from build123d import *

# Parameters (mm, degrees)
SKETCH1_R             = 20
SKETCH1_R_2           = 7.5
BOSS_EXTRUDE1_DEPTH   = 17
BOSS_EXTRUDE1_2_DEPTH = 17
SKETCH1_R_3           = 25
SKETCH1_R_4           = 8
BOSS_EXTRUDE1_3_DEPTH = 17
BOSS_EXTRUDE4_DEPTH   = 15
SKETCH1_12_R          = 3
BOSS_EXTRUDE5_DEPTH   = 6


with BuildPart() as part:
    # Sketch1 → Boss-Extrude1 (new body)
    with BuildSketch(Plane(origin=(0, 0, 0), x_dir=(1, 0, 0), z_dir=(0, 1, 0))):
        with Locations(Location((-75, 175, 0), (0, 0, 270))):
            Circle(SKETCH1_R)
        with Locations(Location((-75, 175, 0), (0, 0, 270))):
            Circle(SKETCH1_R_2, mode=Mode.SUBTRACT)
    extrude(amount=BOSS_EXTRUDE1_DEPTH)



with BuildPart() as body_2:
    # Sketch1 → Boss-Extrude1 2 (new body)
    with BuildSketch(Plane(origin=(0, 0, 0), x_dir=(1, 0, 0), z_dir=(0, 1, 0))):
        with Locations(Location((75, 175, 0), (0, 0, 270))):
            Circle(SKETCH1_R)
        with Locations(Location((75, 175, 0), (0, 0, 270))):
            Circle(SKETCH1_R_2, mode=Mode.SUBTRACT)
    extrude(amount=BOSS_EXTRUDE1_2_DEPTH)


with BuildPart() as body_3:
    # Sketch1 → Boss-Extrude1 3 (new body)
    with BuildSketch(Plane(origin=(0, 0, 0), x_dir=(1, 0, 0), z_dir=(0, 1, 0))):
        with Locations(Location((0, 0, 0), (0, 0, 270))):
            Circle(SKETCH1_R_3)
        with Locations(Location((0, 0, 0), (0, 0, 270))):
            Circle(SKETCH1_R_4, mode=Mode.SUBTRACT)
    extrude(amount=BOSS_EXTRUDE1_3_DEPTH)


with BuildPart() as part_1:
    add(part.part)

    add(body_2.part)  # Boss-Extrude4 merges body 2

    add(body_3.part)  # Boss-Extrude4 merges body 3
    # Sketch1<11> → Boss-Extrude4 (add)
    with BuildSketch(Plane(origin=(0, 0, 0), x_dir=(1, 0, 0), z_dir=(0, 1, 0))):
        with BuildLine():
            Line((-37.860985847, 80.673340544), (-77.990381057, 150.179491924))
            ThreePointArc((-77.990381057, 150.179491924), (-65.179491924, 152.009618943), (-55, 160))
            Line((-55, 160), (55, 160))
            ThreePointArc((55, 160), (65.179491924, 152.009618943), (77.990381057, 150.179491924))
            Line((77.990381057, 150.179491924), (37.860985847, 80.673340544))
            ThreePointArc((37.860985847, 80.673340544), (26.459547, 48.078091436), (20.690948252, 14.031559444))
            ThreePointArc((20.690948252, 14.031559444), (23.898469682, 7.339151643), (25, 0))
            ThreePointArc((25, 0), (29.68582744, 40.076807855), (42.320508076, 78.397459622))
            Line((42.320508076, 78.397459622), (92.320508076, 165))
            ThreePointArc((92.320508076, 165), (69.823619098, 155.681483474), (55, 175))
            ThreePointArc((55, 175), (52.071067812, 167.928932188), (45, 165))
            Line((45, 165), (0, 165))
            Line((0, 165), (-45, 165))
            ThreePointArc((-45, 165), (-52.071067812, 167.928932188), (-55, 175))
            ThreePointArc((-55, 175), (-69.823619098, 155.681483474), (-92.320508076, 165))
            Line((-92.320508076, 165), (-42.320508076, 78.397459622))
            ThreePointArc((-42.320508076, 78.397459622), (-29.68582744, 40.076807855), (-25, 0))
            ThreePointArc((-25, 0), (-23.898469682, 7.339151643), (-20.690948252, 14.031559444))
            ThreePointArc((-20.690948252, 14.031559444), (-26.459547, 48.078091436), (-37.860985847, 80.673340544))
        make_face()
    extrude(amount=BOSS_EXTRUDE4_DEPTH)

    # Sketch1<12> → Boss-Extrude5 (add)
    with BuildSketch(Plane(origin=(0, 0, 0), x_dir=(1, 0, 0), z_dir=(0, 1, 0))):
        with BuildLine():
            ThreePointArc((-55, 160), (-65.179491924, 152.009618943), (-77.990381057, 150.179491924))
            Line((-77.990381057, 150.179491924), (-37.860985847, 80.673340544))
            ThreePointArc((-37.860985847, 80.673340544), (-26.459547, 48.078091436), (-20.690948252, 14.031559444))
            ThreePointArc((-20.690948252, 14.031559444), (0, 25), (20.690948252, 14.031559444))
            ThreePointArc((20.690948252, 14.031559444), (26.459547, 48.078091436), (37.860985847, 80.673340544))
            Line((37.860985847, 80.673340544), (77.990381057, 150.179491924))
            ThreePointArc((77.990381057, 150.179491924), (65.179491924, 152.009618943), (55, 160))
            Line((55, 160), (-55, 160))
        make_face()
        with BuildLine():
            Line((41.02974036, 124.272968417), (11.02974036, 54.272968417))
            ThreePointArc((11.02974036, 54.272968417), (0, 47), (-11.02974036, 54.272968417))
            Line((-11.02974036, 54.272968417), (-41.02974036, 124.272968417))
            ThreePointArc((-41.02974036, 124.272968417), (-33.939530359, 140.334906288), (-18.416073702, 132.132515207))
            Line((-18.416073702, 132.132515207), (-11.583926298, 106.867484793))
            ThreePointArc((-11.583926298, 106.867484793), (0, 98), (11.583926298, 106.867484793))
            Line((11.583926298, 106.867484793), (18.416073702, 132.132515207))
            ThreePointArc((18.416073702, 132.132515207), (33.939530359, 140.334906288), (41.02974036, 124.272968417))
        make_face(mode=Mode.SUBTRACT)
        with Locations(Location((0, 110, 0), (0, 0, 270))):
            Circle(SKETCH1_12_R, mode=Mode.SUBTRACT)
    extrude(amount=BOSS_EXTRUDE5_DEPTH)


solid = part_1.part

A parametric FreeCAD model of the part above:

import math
import FreeCAD as App
import Part
import Sketcher
Q = App.Units.Quantity

doc = App.newDocument("Part")
body = doc.addObject("PartDesign::Body", "Body")

# Sketch on XZ plane
sketch1 = doc.addObject("Sketcher::SketchObject", "Sketch")
body.addObject(sketch1)
sketch1.AttachmentSupport = (doc.XZ_Plane, [""])
sketch1.MapMode = "FlatFace"
sketch1.addGeometry(Part.Circle(App.Vector(-75, -175, 0), App.Vector(0, 0, 1), 20), False)
sketch1.addGeometry(Part.Circle(App.Vector(-75, -175, 0), App.Vector(0, 0, 1), 7.5), False)
sketch1.addConstraint(Sketcher.Constraint("Coincident", 1, 3, 0, 3))
sketch1.addConstraint(Sketcher.Constraint("Diameter", 0, 40.0))
sketch1.addConstraint(Sketcher.Constraint("Diameter", 1, 15.0))
sketch1.addConstraint(Sketcher.Constraint("DistanceX", 0, 3, -1, 1, 75.0))
sketch1.addConstraint(Sketcher.Constraint("DistanceY", 0, 3, -1, 1, 175.0))
pad1 = doc.addObject("PartDesign::Pad", "Pad")
body.addObject(pad1)
pad1.Profile = sketch1
pad1.Length = 17
pad1.Reversed = True
body2 = doc.addObject("PartDesign::Body", "Body001")

# Sketch on XZ plane
sketch2 = doc.addObject("Sketcher::SketchObject", "Sketch001")
body2.addObject(sketch2)
sketch2.AttachmentSupport = (doc.getObject("XZ_Plane001"), [""])
sketch2.MapMode = "FlatFace"
sketch2.addGeometry(Part.Circle(App.Vector(75, -175, 0), App.Vector(0, 0, 1), 20), False)
sketch2.addGeometry(Part.Circle(App.Vector(75, -175, 0), App.Vector(0, 0, 1), 7.5), False)
sketch2.addConstraint(Sketcher.Constraint("Coincident", 1, 3, 0, 3))
sketch2.addConstraint(Sketcher.Constraint("Diameter", 0, 40.0))
sketch2.addConstraint(Sketcher.Constraint("Diameter", 1, 15.0))
sketch2.addConstraint(Sketcher.Constraint("DistanceX", -1, 1, 0, 3, 75.0))
sketch2.addConstraint(Sketcher.Constraint("DistanceY", 0, 3, -1, 1, 175.0))
pad2 = doc.addObject("PartDesign::Pad", "Pad001")
body2.addObject(pad2)
pad2.Profile = sketch2
pad2.Length = 17
pad2.Reversed = True
body3 = doc.addObject("PartDesign::Body", "Body002")

# Sketch on XZ plane
sketch3 = doc.addObject("Sketcher::SketchObject", "Sketch002")
body3.addObject(sketch3)
sketch3.AttachmentSupport = (doc.getObject("XZ_Plane002"), [""])
sketch3.MapMode = "FlatFace"
sketch3.addGeometry(Part.Circle(App.Vector(0, 0, 0), App.Vector(0, 0, 1), 25), False)
sketch3.addGeometry(Part.Circle(App.Vector(0, 0, 0), App.Vector(0, 0, 1), 8), False)
sketch3.addConstraint(Sketcher.Constraint("Coincident", 0, 3, -1, 1))
sketch3.addConstraint(Sketcher.Constraint("Coincident", 1, 3, -1, 1))
sketch3.addConstraint(Sketcher.Constraint("Diameter", 0, 50.0))
sketch3.addConstraint(Sketcher.Constraint("Diameter", 1, 16.0))
pad3 = doc.addObject("PartDesign::Pad", "Pad002")
body3.addObject(pad3)
pad3.Profile = sketch3
pad3.Length = 17
pad3.Reversed = True
body.AllowCompound = True
doc.recompute()

boolean = doc.addObject("PartDesign::Boolean", "Boolean")
body.addObject(boolean)
boolean.Type = "Fuse"
boolean.addObjects([body2])
doc.recompute()

boolean2 = doc.addObject("PartDesign::Boolean", "Boolean001")
body.addObject(boolean2)
boolean2.Type = "Fuse"
boolean2.addObjects([body3])

# Sketch on XZ plane
sketch4 = doc.addObject("Sketcher::SketchObject", "Sketch003")
body.addObject(sketch4)
sketch4.AttachmentSupport = (doc.XZ_Plane, [""])
sketch4.MapMode = "FlatFace"
sketch4.addGeometry(Part.LineSegment(App.Vector(-37.860986, -80.673341, 0), App.Vector(-77.990381, -150.179492, 0)), False)
sketch4.addGeometry(Part.ArcOfCircle(Part.Circle(App.Vector(-75, -175, 0), App.Vector(0, 0, 1), 25), math.radians(36.869898), math.radians(96.869898)), False)
sketch4.addGeometry(Part.LineSegment(App.Vector(-55, -160, 0), App.Vector(55, -160, 0)), False)
sketch4.addGeometry(Part.ArcOfCircle(Part.Circle(App.Vector(75, -175, 0), App.Vector(0, 0, 1), 25), math.radians(83.130102), math.radians(143.130102)), False)
sketch4.addGeometry(Part.LineSegment(App.Vector(77.990381, -150.179492, 0), App.Vector(37.860986, -80.673341, 0)), False)
sketch4.addGeometry(Part.ArcOfCircle(Part.Circle(App.Vector(224.97645, 3.069141, 0), App.Vector(0, 0, 1), 205), math.radians(-175.214937), math.radians(-155.889364)), False)
sketch4.addGeometry(Part.ArcOfCircle(Part.Circle(App.Vector(0, 0, 0), App.Vector(0, 0, 1), 25), math.radians(-34.143145), math.radians(0)), False)
sketch4.addGeometry(Part.ArcOfCircle(Part.Circle(App.Vector(224.97645, 3.069141, 0), App.Vector(0, 0, 1), 200), math.radians(-179.120721), math.radians(-155.962592)), False)
sketch4.addGeometry(Part.LineSegment(App.Vector(42.320508, -78.39746, 0), App.Vector(92.320508, -165, 0)), False)
sketch4.addGeometry(Part.ArcOfCircle(Part.Circle(App.Vector(75, -175, 0), App.Vector(0, 0, 1), 20), math.radians(30), math.radians(180)), False)
sketch4.addGeometry(Part.ArcOfCircle(Part.Circle(App.Vector(45, -175, 0), App.Vector(0, 0, 1), 10), math.radians(0), math.radians(90)), False)
sketch4.addGeometry(Part.LineSegment(App.Vector(45, -165, 0), App.Vector(-45, -165, 0)), False)
sketch4.addGeometry(Part.ArcOfCircle(Part.Circle(App.Vector(-45, -175, 0), App.Vector(0, 0, 1), 10), math.radians(90), math.radians(180)), False)
sketch4.addGeometry(Part.ArcOfCircle(Part.Circle(App.Vector(-75, -175, 0), App.Vector(0, 0, 1), 20), math.radians(0), math.radians(150)), False)
sketch4.addGeometry(Part.LineSegment(App.Vector(-92.320508, -165, 0), App.Vector(-42.320508, -78.39746, 0)), False)
sketch4.addGeometry(Part.ArcOfCircle(Part.Circle(App.Vector(-224.97645, 3.069141, 0), App.Vector(0, 0, 1), 200), math.radians(-24.037408), math.radians(-0.879279)), False)
sketch4.addGeometry(Part.ArcOfCircle(Part.Circle(App.Vector(0, 0, 0), App.Vector(0, 0, 1), 25), math.radians(-180), math.radians(-145.856855)), False)
sketch4.addGeometry(Part.ArcOfCircle(Part.Circle(App.Vector(-224.97645, 3.069141, 0), App.Vector(0, 0, 1), 205), math.radians(-24.110636), math.radians(-4.785063)), False)
sketch4.addConstraint(Sketcher.Constraint("Coincident", 0, 2, 1, 2))
sketch4.addConstraint(Sketcher.Constraint("Coincident", 1, 1, 2, 1))
sketch4.addConstraint(Sketcher.Constraint("Coincident", 2, 2, 3, 2))
sketch4.addConstraint(Sketcher.Constraint("Coincident", 3, 1, 4, 1))
sketch4.addConstraint(Sketcher.Constraint("Coincident", 4, 2, 5, 2))
sketch4.addConstraint(Sketcher.Constraint("Coincident", 5, 1, 6, 1))
sketch4.addConstraint(Sketcher.Constraint("Coincident", 6, 2, 7, 1))
sketch4.addConstraint(Sketcher.Constraint("Coincident", 7, 2, 8, 1))
sketch4.addConstraint(Sketcher.Constraint("Tangent", 8, 2, 9, 1))
sketch4.addConstraint(Sketcher.Constraint("Tangent", 9, 2, 10, 1))
sketch4.addConstraint(Sketcher.Constraint("Tangent", 10, 2, 11, 1))
sketch4.addConstraint(Sketcher.Constraint("Tangent", 11, 2, 12, 1))
sketch4.addConstraint(Sketcher.Constraint("Tangent", 12, 2, 13, 1))
sketch4.addConstraint(Sketcher.Constraint("Tangent", 13, 2, 14, 1))
sketch4.addConstraint(Sketcher.Constraint("Coincident", 14, 2, 15, 1))
sketch4.addConstraint(Sketcher.Constraint("Coincident", 15, 2, 16, 1))
sketch4.addConstraint(Sketcher.Constraint("Coincident", 16, 2, 17, 2))
sketch4.addConstraint(Sketcher.Constraint("Coincident", 17, 1, 0, 1))
sketch4.addConstraint(Sketcher.Constraint("Horizontal", 2))
sketch4.addConstraint(Sketcher.Constraint("Horizontal", 11))
sketch4.addConstraint(Sketcher.Constraint("Coincident", 6, 3, -1, 1))
sketch4.addConstraint(Sketcher.Constraint("Coincident", 16, 3, -1, 1))
sketch4.addConstraint(Sketcher.Constraint("Coincident", 7, 3, 5, 3))
sketch4.addConstraint(Sketcher.Constraint("Coincident", 9, 3, 3, 3))
sketch4.addConstraint(Sketcher.Constraint("Coincident", 13, 3, 1, 3))
sketch4.addConstraint(Sketcher.Constraint("Coincident", 17, 3, 15, 3))
sketch4.addConstraint(Sketcher.Constraint("Equal", 1, 3))
sketch4.addConstraint(Sketcher.Constraint("Equal", 3, 6))
sketch4.addConstraint(Sketcher.Constraint("Equal", 10, 12))
sketch4.addConstraint(Sketcher.Constraint("Equal", 9, 13))
sketch4.addConstraint(Sketcher.Constraint("Equal", 7, 15))
sketch4.addConstraint(Sketcher.Constraint("Equal", 6, 16))
sketch4.addConstraint(Sketcher.Constraint("Equal", 5, 17))
sketch4.addConstraint(Sketcher.Constraint("Symmetric", 1, 3, 3, 3, -2))
sketch4.addConstraint(Sketcher.Constraint("Symmetric", 5, 3, 15, 3, -2))
sketch4.addConstraint(Sketcher.Constraint("PointOnObject", 6, 2, -1))
sketch4.addConstraint(Sketcher.Constraint("Parallel", 4, 8))
sketch4.addConstraint(Sketcher.Constraint("Parallel", 0, 14))
sketch4.addConstraint(Sketcher.Constraint("Horizontal", 9, 3, 10, 3))
sketch4.addConstraint(Sketcher.Constraint("Horizontal", 0, 2, 3, 1))
sketch4.addConstraint(Sketcher.Constraint("Horizontal", 8, 2, 10, 2))
sketch4.addConstraint(Sketcher.Constraint("Horizontal", 7, 2, 14, 2))
sketch4.addConstraint(Sketcher.Constraint("Vertical", 2, 2, 9, 2))
sketch4.addConstraint(Sketcher.Constraint("Radius", 1, 25.0))
sketch4.addConstraint(Sketcher.Constraint("Radius", 5, 205.0))
sketch4.addConstraint(Sketcher.Constraint("Radius", 7, 200.0))
sketch4.addConstraint(Sketcher.Constraint("Radius", 9, 20.0))
sketch4.addConstraint(Sketcher.Constraint("Radius", 10, 10.0))
sketch4.addConstraint(Sketcher.Constraint("DistanceX", 2, 1, 2, 2, 110.0))
sketch4.addConstraint(Sketcher.Constraint("Distance", 8, 100.0))
sketch4.addConstraint(Sketcher.Constraint("DistanceY", 1, 3, -1, 1, 175.0))
sketch4.addConstraint(Sketcher.Constraint("Distance", 0, 80.25879))
pad4 = doc.addObject("PartDesign::Pad", "Pad003")
body.addObject(pad4)
pad4.Profile = sketch4
pad4.Length = 15
pad4.Reversed = True

# Sketch on XZ plane
sketch5 = doc.addObject("Sketcher::SketchObject", "Sketch004")
body.addObject(sketch5)
sketch5.AttachmentSupport = (doc.XZ_Plane, [""])
sketch5.MapMode = "FlatFace"
sketch5.addGeometry(Part.ArcOfCircle(Part.Circle(App.Vector(-75, -175, 0), App.Vector(0, 0, 1), 25), math.radians(36.869898), math.radians(96.869898)), False)
sketch5.addGeometry(Part.LineSegment(App.Vector(-77.990381, -150.179492, 0), App.Vector(-37.860986, -80.673341, 0)), False)
sketch5.addGeometry(Part.ArcOfCircle(Part.Circle(App.Vector(-224.97645, 3.069141, 0), App.Vector(0, 0, 1), 205), math.radians(-24.110636), math.radians(-4.785063)), False)
sketch5.addGeometry(Part.ArcOfCircle(Part.Circle(App.Vector(0, 0, 0), App.Vector(0, 0, 1), 25), math.radians(-145.856855), math.radians(-34.143145)), False)
sketch5.addGeometry(Part.ArcOfCircle(Part.Circle(App.Vector(224.97645, 3.069141, 0), App.Vector(0, 0, 1), 205), math.radians(-175.214937), math.radians(-155.889364)), False)
sketch5.addGeometry(Part.LineSegment(App.Vector(37.860986, -80.673341, 0), App.Vector(77.990381, -150.179492, 0)), False)
sketch5.addGeometry(Part.ArcOfCircle(Part.Circle(App.Vector(75, -175, 0), App.Vector(0, 0, 1), 25), math.radians(83.130102), math.radians(143.130102)), False)
sketch5.addGeometry(Part.LineSegment(App.Vector(55, -160, 0), App.Vector(-55, -160, 0)), False)
sketch5.addGeometry(Part.ArcOfCircle(Part.Circle(App.Vector(30, -129, 0), App.Vector(0, 0, 1), 12), math.radians(-164.868045), math.radians(23.198591)), False)
sketch5.addGeometry(Part.LineSegment(App.Vector(41.02974, -124.272968, 0), App.Vector(11.02974, -54.272968, 0)), False)
sketch5.addGeometry(Part.ArcOfCircle(Part.Circle(App.Vector(0, -59, 0), App.Vector(0, 0, 1), 12), math.radians(23.198591), math.radians(156.801409)), False)
sketch5.addGeometry(Part.LineSegment(App.Vector(-11.02974, -54.272968, 0), App.Vector(-41.02974, -124.272968, 0)), False)
sketch5.addGeometry(Part.ArcOfCircle(Part.Circle(App.Vector(-30, -129, 0), App.Vector(0, 0, 1), 12), math.radians(156.801409), math.radians(344.868045)), False)
sketch5.addGeometry(Part.LineSegment(App.Vector(-18.416074, -132.132515, 0), App.Vector(-11.583926, -106.867485, 0)), False)
sketch5.addGeometry(Part.ArcOfCircle(Part.Circle(App.Vector(0, -110, 0), App.Vector(0, 0, 1), 12), math.radians(15.131955), math.radians(164.868045)), False)
sketch5.addGeometry(Part.LineSegment(App.Vector(11.583926, -106.867485, 0), App.Vector(18.416074, -132.132515, 0)), False)
sketch5.addGeometry(Part.Circle(App.Vector(0, -110, 0), App.Vector(0, 0, 1), 3), False)
sketch5.addConstraint(Sketcher.Constraint("Coincident", 0, 2, 1, 1))
sketch5.addConstraint(Sketcher.Constraint("Coincident", 1, 2, 2, 1))
sketch5.addConstraint(Sketcher.Constraint("Coincident", 2, 2, 3, 1))
sketch5.addConstraint(Sketcher.Constraint("Coincident", 3, 2, 4, 1))
sketch5.addConstraint(Sketcher.Constraint("Coincident", 4, 2, 5, 1))
sketch5.addConstraint(Sketcher.Constraint("Coincident", 5, 2, 6, 1))
sketch5.addConstraint(Sketcher.Constraint("Coincident", 6, 2, 7, 1))
sketch5.addConstraint(Sketcher.Constraint("Coincident", 7, 2, 0, 1))
sketch5.addConstraint(Sketcher.Constraint("Tangent", 8, 2, 9, 1))
sketch5.addConstraint(Sketcher.Constraint("Tangent", 9, 2, 10, 1))
sketch5.addConstraint(Sketcher.Constraint("Tangent", 10, 2, 11, 1))
sketch5.addConstraint(Sketcher.Constraint("Tangent", 11, 2, 12, 1))
sketch5.addConstraint(Sketcher.Constraint("Tangent", 12, 2, 13, 1))
sketch5.addConstraint(Sketcher.Constraint("Tangent", 13, 2, 14, 2))
sketch5.addConstraint(Sketcher.Constraint("Tangent", 14, 1, 15, 1))
sketch5.addConstraint(Sketcher.Constraint("Tangent", 15, 2, 8, 1))
sketch5.addConstraint(Sketcher.Constraint("Horizontal", 7))
sketch5.addConstraint(Sketcher.Constraint("Coincident", 3, 3, -1, 1))
sketch5.addConstraint(Sketcher.Constraint("Coincident", 16, 3, 14, 3))
sketch5.addConstraint(Sketcher.Constraint("Equal", 0, 3))
sketch5.addConstraint(Sketcher.Constraint("Equal", 2, 4))
sketch5.addConstraint(Sketcher.Constraint("Equal", 3, 6))
sketch5.addConstraint(Sketcher.Constraint("Equal", 8, 10))
sketch5.addConstraint(Sketcher.Constraint("Equal", 10, 12))
sketch5.addConstraint(Sketcher.Constraint("Equal", 12, 14))
sketch5.addConstraint(Sketcher.Constraint("Symmetric", 2, 3, 4, 3, -2))
sketch5.addConstraint(Sketcher.Constraint("Symmetric", 0, 3, 6, 3, -2))
sketch5.addConstraint(Sketcher.Constraint("Symmetric", 8, 3, 12, 3, -2))
sketch5.addConstraint(Sketcher.Constraint("PointOnObject", 10, 3, -2))
sketch5.addConstraint(Sketcher.Constraint("PointOnObject", 14, 3, -2))
sketch5.addConstraint(Sketcher.Constraint("Horizontal", 1, 2, 4, 2))
sketch5.addConstraint(Sketcher.Constraint("Horizontal", 0, 2, 5, 2))
sketch5.addConstraint(Sketcher.Constraint("Diameter", 16, 6.0))
sketch5.addConstraint(Sketcher.Constraint("Radius", 0, 25.0))
sketch5.addConstraint(Sketcher.Constraint("Radius", 2, 205.0))
sketch5.addConstraint(Sketcher.Constraint("Radius", 8, 12.0))
sketch5.addConstraint(Sketcher.Constraint("DistanceX", 7, 2, 7, 1, 110.0))
sketch5.addConstraint(Sketcher.Constraint("Angle", 1, Q("60 deg")))
sketch5.addConstraint(Sketcher.Constraint("DistanceX", 0, 3, -1, 1, 75.0))
sketch5.addConstraint(Sketcher.Constraint("DistanceY", 0, 3, -1, 1, 175.0))
sketch5.addConstraint(Sketcher.Constraint("DistanceX", -1, 1, 8, 3, 30.0))
sketch5.addConstraint(Sketcher.Constraint("DistanceY", 8, 3, -1, 1, 129.0))
sketch5.addConstraint(Sketcher.Constraint("DistanceY", 10, 3, -1, 1, 59.0))
sketch5.addConstraint(Sketcher.Constraint("DistanceY", 14, 3, -1, 1, 110.0))
sketch5.addConstraint(Sketcher.Constraint("DistanceX", 2, 3, 4, 3, 449.952899))
sketch5.addConstraint(Sketcher.Constraint("Distance", 1, 80.25879))
sketch5.addConstraint(Sketcher.Constraint("DistanceY", -1, 1, 2, 3, 3.069141))
pad5 = doc.addObject("PartDesign::Pad", "Pad004")
body.addObject(pad5)
pad5.Profile = sketch5
pad5.Length = 6
pad5.Reversed = True

doc.recompute()
